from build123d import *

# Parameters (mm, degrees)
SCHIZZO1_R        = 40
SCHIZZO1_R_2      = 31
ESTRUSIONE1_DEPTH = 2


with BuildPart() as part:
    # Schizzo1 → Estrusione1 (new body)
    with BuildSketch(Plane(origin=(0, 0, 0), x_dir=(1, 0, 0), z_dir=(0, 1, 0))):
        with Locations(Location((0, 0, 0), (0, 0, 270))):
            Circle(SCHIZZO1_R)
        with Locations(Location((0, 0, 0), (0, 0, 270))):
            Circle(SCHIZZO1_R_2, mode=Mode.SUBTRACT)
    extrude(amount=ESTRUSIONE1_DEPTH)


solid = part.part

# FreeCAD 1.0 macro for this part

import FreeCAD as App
import Part
import Sketcher

V = App.Vector

doc = App.newDocument("Part")
body = doc.addObject("PartDesign::Body", "Body")

# Sketch on XZ plane
sketch1 = body.newObject("Sketcher::SketchObject", "Sketch")
sketch1.AttachmentSupport = (doc.getObject("XZ_Plane"), [""])
sketch1.MapMode = "FlatFace"
sketch1.addGeometry([
    Part.Circle(V(0, 0, 0), V(0, 0, 1), 40),
    Part.Circle(V(0, 0, 0), V(0, 0, 1), 31),
], False)
sketch1.addConstraint([
    Sketcher.Constraint("Coincident", 0, 3, -1, 1),
    Sketcher.Constraint("Coincident", 1, 3, -1, 1),
    Sketcher.Constraint("Diameter", 0, 80.0),
    Sketcher.Constraint("Diameter", 1, 62.0),
])
pad1 = body.newObject("PartDesign::Pad", "Pad")
pad1.Profile = sketch1
pad1.Length = 2
pad1.Reversed = True

doc.recompute()
